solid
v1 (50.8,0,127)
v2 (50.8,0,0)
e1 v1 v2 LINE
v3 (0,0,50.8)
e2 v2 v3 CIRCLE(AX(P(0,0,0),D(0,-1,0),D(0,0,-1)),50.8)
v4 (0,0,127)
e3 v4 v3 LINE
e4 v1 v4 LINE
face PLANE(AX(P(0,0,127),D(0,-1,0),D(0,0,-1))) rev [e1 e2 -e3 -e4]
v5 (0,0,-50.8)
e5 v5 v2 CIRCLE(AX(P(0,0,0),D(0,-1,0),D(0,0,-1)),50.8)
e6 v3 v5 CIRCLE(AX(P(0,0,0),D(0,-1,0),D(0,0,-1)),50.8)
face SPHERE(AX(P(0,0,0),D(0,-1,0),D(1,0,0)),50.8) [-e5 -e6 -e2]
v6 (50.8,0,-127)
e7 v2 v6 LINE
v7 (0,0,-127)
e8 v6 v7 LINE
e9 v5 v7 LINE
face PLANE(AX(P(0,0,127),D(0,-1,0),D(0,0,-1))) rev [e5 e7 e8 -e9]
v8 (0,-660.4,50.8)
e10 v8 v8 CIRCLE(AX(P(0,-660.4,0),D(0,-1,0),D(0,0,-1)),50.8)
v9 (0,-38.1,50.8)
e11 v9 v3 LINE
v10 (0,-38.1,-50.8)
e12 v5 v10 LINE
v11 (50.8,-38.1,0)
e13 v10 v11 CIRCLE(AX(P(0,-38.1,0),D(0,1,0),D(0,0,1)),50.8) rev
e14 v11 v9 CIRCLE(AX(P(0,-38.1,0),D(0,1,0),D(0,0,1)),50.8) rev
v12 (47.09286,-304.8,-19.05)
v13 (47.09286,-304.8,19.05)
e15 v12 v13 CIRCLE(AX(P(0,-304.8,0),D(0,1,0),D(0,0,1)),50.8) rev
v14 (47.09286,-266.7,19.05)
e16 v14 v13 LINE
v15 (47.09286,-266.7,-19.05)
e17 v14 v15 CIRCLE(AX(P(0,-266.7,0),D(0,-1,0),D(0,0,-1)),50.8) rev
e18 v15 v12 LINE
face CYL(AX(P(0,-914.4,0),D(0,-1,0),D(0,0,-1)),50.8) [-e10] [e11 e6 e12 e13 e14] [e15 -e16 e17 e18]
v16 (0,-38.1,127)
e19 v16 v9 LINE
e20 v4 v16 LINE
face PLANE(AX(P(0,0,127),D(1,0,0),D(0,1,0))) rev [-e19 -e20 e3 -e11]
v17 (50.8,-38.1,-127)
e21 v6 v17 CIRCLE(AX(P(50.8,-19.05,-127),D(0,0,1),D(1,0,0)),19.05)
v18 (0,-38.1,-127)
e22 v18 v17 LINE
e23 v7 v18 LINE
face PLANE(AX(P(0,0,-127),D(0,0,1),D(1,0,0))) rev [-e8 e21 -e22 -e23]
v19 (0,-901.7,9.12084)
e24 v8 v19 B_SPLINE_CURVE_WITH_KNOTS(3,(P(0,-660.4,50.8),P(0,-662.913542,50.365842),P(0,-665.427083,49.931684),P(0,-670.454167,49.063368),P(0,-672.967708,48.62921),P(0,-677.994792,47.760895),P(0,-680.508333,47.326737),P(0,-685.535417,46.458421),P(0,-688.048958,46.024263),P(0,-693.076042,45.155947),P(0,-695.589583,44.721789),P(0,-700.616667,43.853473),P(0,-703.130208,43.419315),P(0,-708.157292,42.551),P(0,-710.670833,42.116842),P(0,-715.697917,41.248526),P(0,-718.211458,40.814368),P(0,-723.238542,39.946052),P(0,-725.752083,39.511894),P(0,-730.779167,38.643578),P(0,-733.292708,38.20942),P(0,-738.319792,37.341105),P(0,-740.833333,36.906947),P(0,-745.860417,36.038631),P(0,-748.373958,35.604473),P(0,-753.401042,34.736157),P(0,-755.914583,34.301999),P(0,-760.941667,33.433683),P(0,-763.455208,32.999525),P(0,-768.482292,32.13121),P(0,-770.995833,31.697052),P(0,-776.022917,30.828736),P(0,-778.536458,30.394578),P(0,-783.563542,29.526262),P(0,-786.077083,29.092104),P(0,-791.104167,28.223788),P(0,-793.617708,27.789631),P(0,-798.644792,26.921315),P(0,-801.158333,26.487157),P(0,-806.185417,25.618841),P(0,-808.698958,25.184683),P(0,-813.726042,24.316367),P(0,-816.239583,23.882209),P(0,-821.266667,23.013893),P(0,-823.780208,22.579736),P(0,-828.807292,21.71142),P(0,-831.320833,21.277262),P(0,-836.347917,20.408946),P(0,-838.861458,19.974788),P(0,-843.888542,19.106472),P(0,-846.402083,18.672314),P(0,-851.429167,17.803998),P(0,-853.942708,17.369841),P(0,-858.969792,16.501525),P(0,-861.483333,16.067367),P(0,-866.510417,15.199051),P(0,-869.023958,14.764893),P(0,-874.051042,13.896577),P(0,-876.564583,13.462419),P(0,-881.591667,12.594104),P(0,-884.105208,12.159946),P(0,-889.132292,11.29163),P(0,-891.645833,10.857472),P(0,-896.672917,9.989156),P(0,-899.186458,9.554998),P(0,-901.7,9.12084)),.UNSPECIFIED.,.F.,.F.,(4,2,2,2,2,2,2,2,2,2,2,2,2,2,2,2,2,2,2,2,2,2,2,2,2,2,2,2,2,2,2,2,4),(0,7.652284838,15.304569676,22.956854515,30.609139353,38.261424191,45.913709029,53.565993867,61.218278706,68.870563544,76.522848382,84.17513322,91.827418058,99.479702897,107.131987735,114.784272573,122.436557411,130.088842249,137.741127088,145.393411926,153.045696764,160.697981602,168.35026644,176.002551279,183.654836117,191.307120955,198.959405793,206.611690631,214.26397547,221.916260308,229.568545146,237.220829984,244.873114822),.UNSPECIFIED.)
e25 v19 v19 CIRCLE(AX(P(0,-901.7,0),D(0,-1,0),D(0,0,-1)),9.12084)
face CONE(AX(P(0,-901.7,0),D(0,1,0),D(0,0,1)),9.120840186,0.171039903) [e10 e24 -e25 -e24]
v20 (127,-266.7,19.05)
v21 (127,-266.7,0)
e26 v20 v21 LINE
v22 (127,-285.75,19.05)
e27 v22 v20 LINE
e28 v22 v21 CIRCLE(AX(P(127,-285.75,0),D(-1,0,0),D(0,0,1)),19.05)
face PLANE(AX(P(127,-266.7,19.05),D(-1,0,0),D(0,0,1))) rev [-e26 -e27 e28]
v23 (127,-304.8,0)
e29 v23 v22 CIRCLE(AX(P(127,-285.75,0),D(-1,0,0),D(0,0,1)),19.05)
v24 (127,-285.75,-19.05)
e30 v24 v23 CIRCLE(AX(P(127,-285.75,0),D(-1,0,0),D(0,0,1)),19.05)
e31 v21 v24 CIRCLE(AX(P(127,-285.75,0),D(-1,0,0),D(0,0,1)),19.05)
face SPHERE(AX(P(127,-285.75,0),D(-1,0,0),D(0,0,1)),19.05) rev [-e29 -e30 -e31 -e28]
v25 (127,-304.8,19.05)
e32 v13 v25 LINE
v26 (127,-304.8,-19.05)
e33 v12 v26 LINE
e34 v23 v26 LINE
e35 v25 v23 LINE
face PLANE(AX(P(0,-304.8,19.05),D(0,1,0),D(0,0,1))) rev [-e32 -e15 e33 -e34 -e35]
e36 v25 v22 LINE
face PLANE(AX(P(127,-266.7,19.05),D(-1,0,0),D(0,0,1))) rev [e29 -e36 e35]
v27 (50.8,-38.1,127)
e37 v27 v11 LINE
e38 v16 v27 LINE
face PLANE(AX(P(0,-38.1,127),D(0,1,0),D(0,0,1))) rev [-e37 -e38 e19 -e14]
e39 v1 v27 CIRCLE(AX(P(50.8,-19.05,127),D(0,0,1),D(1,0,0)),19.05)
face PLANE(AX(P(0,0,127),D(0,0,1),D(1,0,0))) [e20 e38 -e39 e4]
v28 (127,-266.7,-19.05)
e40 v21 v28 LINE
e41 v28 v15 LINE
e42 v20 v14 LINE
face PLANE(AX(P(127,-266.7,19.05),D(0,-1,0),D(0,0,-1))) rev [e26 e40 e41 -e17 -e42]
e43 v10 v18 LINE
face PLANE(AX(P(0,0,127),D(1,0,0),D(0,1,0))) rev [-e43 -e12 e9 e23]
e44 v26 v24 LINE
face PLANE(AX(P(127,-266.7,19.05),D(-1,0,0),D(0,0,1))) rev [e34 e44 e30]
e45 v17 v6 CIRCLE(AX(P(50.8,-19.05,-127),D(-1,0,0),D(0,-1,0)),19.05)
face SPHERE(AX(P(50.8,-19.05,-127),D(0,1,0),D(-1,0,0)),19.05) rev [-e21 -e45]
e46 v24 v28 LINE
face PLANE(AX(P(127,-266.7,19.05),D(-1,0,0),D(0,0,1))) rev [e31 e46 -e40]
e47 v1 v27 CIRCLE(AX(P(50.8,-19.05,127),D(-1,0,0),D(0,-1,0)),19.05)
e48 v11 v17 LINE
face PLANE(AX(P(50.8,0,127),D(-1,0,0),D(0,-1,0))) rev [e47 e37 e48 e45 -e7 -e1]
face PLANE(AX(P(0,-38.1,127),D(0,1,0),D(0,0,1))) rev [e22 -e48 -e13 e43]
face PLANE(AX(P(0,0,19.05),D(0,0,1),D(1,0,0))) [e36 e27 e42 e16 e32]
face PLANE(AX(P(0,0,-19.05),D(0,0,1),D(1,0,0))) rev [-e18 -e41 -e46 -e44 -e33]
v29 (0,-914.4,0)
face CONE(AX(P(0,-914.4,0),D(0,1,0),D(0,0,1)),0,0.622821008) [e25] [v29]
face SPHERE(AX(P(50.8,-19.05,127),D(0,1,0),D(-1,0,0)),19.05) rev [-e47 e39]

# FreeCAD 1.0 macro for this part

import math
import FreeCAD as App
import Part
import Sketcher
Q = App.Units.Quantity

doc = App.newDocument("Part")
body = doc.addObject("PartDesign::Body", "Body")

# Sketch on XY plane
sketch1 = body.newObject("Sketcher::SketchObject", "Sketch")
sketch1.AttachmentSupport = (doc.getObject("XY_Plane"), [""])
sketch1.MapMode = "FlatFace"
sketch1.addGeometry([
    Part.LineSegment(App.Vector(51, -660, 0), App.Vector(51, 0, 0)),  # 0
    Part.ArcOfCircle(Part.Circle(App.Vector(0, 0, 0), App.Vector(0, 0, 1), 51), math.radians(0), math.radians(90)),  # 1
    Part.LineSegment(App.Vector(0, 51, 0), App.Vector(0, -914, 0)),  # 2
    Part.LineSegment(App.Vector(0, -914, 0), App.Vector(9, -902, 0)),  # 3
    Part.LineSegment(App.Vector(9, -902, 0), App.Vector(51, -660, 0)),  # 4
], False)
sketch1.addConstraint([
    Sketcher.Constraint("Tangent", 0, 2, 1, 1),
    Sketcher.Constraint("Coincident", 1, 2, 2, 1),
    Sketcher.Constraint("Coincident", 2, 2, 3, 1),
    Sketcher.Constraint("Coincident", 3, 2, 4, 1),
    Sketcher.Constraint("Coincident", 4, 2, 0, 1),
    Sketcher.Constraint("Vertical", 0),
    Sketcher.Constraint("Vertical", 2),
    Sketcher.Constraint("Coincident", 1, 3, -1, 1),
    Sketcher.Constraint("PointOnObject", 1, 2, -2),
    Sketcher.Constraint("Radius", 1, Q("2 in")),
    Sketcher.Constraint("DistanceY", 0, 1, 0, 2, Q("26 in")),
    Sketcher.Constraint("DistanceY", 2, 2, 2, 1, Q("38 in")),
    Sketcher.Constraint("DistanceY", 3, 2, -1, 1, Q("35.5 in")),
    Sketcher.Constraint("DistanceX", -1, 1, 3, 2, Q("9.12084 mm")),
])
revolution = body.newObject("PartDesign::Revolution", "Revolution")
revolution.Profile = sketch1
revolution.ReferenceAxis = (sketch1, ["V_Axis"])
revolution.Angle = 360

# Sketch on XY plane
sketch2 = body.newObject("Sketcher::SketchObject", "Sketch001")
sketch2.AttachmentSupport = (doc.getObject("XY_Plane"), [""])
sketch2.MapMode = "FlatFace"
sketch2.addGeometry([
    Part.LineSegment(App.Vector(0, 0, 0), App.Vector(0, -38, 0)),
    Part.LineSegment(App.Vector(0, -38, 0), App.Vector(51, -38, 0)),
    Part.LineSegment(App.Vector(51, -38, 0), App.Vector(51, 0, 0)),
    Part.LineSegment(App.Vector(51, 0, 0), App.Vector(0, 0, 0)),
], False)
sketch2.addConstraint([
    Sketcher.Constraint("Coincident", 0, 2, 1, 1),
    Sketcher.Constraint("Coincident", 1, 2, 2, 1),
    Sketcher.Constraint("Coincident", 2, 2, 3, 1),
    Sketcher.Constraint("Coincident", 3, 2, 0, 1),
    Sketcher.Constraint("Vertical", 0),
    Sketcher.Constraint("Horizontal", 1),
    Sketcher.Constraint("Vertical", 2),
    Sketcher.Constraint("Horizontal", 3),
    Sketcher.Constraint("Coincident", 3, 2, -1, 1),
    Sketcher.Constraint("DistanceX", 1, 1, 1, 2, Q("2 in")),
    Sketcher.Constraint("DistanceY", 0, 2, 0, 1, Q("1.5 in")),
])
pad1 = body.newObject("PartDesign::Pad", "Pad")
pad1.Profile = sketch2
pad1.Length = Q("10 in")
pad1.Midplane = True

# Sketch on XY plane
sketch3 = body.newObject("Sketcher::SketchObject", "Sketch002")
sketch3.AttachmentSupport = (doc.getObject("XY_Plane"), [""])
sketch3.MapMode = "FlatFace"
sketch3.addGeometry([
    Part.LineSegment(App.Vector(0, -267, 0), App.Vector(0, -305, 0)),
    Part.LineSegment(App.Vector(0, -305, 0), App.Vector(127, -305, 0)),
    Part.LineSegment(App.Vector(127, -305, 0), App.Vector(127, -267, 0)),
    Part.LineSegment(App.Vector(127, -267, 0), App.Vector(0, -267, 0)),
], False)
sketch3.addConstraint([
    Sketcher.Constraint("Coincident", 0, 2, 1, 1),
    Sketcher.Constraint("Coincident", 1, 2, 2, 1),
    Sketcher.Constraint("Coincident", 2, 2, 3, 1),
    Sketcher.Constraint("Coincident", 3, 2, 0, 1),
    Sketcher.Constraint("Vertical", 0),
    Sketcher.Constraint("Horizontal", 1),
    Sketcher.Constraint("Vertical", 2),
    Sketcher.Constraint("Horizontal", 3),
    Sketcher.Constraint("PointOnObject", 0, 2, -2),
    Sketcher.Constraint("DistanceX", 1, 1, 1, 2, Q("5 in")),
    Sketcher.Constraint("DistanceY", 0, 2, 0, 1, Q("1.5 in")),
    Sketcher.Constraint("DistanceY", 0, 2, -1, 1, Q("12 in")),
])
pad2 = body.newObject("PartDesign::Pad", "Pad001")
pad2.Profile = sketch3
pad2.Length = Q("1.5 in")
pad2.Midplane = True

# Sketch on XY plane
sketch4 = body.newObject("Sketcher::SketchObject", "Sketch003")
sketch4.AttachmentSupport = (doc.getObject("XY_Plane"), [""])
sketch4.MapMode = "FlatFace"
sketch4.AttachmentOffset = App.Placement(App.Vector(0, 0, 5 * 25.4), App.Rotation())
sketch4.addGeometry([
    Part.LineSegment(App.Vector(51, -38, 0), App.Vector(51, 0, 0)),
    Part.ArcOfCircle(Part.Circle(App.Vector(51, -19, 0), App.Vector(0, 0, 1), 19), math.radians(90), math.radians(270)),
], False)
sketch4.addGeometry(Part.LineSegment(App.Vector(51, 0, 0), App.Vector(51, -38, 0)), True)  # axis
sketch4.addConstraint([
    Sketcher.Constraint("Coincident", 0, 1, 1, 2),
    Sketcher.Constraint("Coincident", 1, 1, 0, 2),
    Sketcher.Constraint("Vertical", 0),
    Sketcher.Constraint("Vertical", 2),
    Sketcher.Constraint("Coincident", 2, 1, 1, 1),
    Sketcher.Constraint("PointOnObject", 1, 1, -1),
    Sketcher.Constraint("Vertical", 1, 3, 0, 1),
    Sketcher.Constraint("Equal", 0, 2),
    Sketcher.Constraint("Radius", 1, Q("0.75 in")),
    Sketcher.Constraint("DistanceX", -1, 1, 1, 3, Q("2 in")),
])
groove = body.newObject("PartDesign::Groove", "Groove")
groove.Profile = sketch4
groove.ReferenceAxis = (sketch4, ["Axis0"])
groove.Angle = 360
doc.recompute()

mirrored = body.newObject("PartDesign::Mirrored", "Mirrored")
mirrored.Originals = [groove]
mirrored.MirrorPlane = (doc.getObject("XY_Plane"), [""])
body.Tip = mirrored

# Sketch on XY plane
sketch5 = body.newObject("Sketcher::SketchObject", "Sketch004")
sketch5.AttachmentSupport = (doc.getObject("XY_Plane"), [""])
sketch5.MapMode = "FlatFace"
sketch5.addGeometry([
    Part.LineSegment(App.Vector(127, -305, 0), App.Vector(127, -267, 0)),
    Part.ArcOfCircle(Part.Circle(App.Vector(127, -286, 0), App.Vector(0, 0, 1), 19), math.radians(90), math.radians(270)),
], False)
sketch5.addGeometry(Part.LineSegment(App.Vector(127, -267, 0), App.Vector(127, -305, 0)), True)  # axis
sketch5.addConstraint([
    Sketcher.Constraint("Coincident", 0, 1, 1, 2),
    Sketcher.Constraint("Coincident", 1, 1, 0, 2),
    Sketcher.Constraint("Vertical", 0),
    Sketcher.Constraint("Vertical", 2),
    Sketcher.Constraint("Coincident", 2, 1, 1, 1),
    Sketcher.Constraint("Vertical", 1, 3, 0, 1),
    Sketcher.Constraint("Equal", 0, 2),
    Sketcher.Constraint("Radius", 1, Q("0.75 in")),
    Sketcher.Constraint("DistanceX", -1, 1, 1, 3, Q("5 in")),
    Sketcher.Constraint("DistanceY", 0, 1, -1, 1, Q("12 in")),
])
groove2 = body.newObject("PartDesign::Groove", "Groove001")
groove2.Profile = sketch5
groove2.ReferenceAxis = (sketch5, ["Axis0"])
groove2.Angle = 360

doc.recompute()
